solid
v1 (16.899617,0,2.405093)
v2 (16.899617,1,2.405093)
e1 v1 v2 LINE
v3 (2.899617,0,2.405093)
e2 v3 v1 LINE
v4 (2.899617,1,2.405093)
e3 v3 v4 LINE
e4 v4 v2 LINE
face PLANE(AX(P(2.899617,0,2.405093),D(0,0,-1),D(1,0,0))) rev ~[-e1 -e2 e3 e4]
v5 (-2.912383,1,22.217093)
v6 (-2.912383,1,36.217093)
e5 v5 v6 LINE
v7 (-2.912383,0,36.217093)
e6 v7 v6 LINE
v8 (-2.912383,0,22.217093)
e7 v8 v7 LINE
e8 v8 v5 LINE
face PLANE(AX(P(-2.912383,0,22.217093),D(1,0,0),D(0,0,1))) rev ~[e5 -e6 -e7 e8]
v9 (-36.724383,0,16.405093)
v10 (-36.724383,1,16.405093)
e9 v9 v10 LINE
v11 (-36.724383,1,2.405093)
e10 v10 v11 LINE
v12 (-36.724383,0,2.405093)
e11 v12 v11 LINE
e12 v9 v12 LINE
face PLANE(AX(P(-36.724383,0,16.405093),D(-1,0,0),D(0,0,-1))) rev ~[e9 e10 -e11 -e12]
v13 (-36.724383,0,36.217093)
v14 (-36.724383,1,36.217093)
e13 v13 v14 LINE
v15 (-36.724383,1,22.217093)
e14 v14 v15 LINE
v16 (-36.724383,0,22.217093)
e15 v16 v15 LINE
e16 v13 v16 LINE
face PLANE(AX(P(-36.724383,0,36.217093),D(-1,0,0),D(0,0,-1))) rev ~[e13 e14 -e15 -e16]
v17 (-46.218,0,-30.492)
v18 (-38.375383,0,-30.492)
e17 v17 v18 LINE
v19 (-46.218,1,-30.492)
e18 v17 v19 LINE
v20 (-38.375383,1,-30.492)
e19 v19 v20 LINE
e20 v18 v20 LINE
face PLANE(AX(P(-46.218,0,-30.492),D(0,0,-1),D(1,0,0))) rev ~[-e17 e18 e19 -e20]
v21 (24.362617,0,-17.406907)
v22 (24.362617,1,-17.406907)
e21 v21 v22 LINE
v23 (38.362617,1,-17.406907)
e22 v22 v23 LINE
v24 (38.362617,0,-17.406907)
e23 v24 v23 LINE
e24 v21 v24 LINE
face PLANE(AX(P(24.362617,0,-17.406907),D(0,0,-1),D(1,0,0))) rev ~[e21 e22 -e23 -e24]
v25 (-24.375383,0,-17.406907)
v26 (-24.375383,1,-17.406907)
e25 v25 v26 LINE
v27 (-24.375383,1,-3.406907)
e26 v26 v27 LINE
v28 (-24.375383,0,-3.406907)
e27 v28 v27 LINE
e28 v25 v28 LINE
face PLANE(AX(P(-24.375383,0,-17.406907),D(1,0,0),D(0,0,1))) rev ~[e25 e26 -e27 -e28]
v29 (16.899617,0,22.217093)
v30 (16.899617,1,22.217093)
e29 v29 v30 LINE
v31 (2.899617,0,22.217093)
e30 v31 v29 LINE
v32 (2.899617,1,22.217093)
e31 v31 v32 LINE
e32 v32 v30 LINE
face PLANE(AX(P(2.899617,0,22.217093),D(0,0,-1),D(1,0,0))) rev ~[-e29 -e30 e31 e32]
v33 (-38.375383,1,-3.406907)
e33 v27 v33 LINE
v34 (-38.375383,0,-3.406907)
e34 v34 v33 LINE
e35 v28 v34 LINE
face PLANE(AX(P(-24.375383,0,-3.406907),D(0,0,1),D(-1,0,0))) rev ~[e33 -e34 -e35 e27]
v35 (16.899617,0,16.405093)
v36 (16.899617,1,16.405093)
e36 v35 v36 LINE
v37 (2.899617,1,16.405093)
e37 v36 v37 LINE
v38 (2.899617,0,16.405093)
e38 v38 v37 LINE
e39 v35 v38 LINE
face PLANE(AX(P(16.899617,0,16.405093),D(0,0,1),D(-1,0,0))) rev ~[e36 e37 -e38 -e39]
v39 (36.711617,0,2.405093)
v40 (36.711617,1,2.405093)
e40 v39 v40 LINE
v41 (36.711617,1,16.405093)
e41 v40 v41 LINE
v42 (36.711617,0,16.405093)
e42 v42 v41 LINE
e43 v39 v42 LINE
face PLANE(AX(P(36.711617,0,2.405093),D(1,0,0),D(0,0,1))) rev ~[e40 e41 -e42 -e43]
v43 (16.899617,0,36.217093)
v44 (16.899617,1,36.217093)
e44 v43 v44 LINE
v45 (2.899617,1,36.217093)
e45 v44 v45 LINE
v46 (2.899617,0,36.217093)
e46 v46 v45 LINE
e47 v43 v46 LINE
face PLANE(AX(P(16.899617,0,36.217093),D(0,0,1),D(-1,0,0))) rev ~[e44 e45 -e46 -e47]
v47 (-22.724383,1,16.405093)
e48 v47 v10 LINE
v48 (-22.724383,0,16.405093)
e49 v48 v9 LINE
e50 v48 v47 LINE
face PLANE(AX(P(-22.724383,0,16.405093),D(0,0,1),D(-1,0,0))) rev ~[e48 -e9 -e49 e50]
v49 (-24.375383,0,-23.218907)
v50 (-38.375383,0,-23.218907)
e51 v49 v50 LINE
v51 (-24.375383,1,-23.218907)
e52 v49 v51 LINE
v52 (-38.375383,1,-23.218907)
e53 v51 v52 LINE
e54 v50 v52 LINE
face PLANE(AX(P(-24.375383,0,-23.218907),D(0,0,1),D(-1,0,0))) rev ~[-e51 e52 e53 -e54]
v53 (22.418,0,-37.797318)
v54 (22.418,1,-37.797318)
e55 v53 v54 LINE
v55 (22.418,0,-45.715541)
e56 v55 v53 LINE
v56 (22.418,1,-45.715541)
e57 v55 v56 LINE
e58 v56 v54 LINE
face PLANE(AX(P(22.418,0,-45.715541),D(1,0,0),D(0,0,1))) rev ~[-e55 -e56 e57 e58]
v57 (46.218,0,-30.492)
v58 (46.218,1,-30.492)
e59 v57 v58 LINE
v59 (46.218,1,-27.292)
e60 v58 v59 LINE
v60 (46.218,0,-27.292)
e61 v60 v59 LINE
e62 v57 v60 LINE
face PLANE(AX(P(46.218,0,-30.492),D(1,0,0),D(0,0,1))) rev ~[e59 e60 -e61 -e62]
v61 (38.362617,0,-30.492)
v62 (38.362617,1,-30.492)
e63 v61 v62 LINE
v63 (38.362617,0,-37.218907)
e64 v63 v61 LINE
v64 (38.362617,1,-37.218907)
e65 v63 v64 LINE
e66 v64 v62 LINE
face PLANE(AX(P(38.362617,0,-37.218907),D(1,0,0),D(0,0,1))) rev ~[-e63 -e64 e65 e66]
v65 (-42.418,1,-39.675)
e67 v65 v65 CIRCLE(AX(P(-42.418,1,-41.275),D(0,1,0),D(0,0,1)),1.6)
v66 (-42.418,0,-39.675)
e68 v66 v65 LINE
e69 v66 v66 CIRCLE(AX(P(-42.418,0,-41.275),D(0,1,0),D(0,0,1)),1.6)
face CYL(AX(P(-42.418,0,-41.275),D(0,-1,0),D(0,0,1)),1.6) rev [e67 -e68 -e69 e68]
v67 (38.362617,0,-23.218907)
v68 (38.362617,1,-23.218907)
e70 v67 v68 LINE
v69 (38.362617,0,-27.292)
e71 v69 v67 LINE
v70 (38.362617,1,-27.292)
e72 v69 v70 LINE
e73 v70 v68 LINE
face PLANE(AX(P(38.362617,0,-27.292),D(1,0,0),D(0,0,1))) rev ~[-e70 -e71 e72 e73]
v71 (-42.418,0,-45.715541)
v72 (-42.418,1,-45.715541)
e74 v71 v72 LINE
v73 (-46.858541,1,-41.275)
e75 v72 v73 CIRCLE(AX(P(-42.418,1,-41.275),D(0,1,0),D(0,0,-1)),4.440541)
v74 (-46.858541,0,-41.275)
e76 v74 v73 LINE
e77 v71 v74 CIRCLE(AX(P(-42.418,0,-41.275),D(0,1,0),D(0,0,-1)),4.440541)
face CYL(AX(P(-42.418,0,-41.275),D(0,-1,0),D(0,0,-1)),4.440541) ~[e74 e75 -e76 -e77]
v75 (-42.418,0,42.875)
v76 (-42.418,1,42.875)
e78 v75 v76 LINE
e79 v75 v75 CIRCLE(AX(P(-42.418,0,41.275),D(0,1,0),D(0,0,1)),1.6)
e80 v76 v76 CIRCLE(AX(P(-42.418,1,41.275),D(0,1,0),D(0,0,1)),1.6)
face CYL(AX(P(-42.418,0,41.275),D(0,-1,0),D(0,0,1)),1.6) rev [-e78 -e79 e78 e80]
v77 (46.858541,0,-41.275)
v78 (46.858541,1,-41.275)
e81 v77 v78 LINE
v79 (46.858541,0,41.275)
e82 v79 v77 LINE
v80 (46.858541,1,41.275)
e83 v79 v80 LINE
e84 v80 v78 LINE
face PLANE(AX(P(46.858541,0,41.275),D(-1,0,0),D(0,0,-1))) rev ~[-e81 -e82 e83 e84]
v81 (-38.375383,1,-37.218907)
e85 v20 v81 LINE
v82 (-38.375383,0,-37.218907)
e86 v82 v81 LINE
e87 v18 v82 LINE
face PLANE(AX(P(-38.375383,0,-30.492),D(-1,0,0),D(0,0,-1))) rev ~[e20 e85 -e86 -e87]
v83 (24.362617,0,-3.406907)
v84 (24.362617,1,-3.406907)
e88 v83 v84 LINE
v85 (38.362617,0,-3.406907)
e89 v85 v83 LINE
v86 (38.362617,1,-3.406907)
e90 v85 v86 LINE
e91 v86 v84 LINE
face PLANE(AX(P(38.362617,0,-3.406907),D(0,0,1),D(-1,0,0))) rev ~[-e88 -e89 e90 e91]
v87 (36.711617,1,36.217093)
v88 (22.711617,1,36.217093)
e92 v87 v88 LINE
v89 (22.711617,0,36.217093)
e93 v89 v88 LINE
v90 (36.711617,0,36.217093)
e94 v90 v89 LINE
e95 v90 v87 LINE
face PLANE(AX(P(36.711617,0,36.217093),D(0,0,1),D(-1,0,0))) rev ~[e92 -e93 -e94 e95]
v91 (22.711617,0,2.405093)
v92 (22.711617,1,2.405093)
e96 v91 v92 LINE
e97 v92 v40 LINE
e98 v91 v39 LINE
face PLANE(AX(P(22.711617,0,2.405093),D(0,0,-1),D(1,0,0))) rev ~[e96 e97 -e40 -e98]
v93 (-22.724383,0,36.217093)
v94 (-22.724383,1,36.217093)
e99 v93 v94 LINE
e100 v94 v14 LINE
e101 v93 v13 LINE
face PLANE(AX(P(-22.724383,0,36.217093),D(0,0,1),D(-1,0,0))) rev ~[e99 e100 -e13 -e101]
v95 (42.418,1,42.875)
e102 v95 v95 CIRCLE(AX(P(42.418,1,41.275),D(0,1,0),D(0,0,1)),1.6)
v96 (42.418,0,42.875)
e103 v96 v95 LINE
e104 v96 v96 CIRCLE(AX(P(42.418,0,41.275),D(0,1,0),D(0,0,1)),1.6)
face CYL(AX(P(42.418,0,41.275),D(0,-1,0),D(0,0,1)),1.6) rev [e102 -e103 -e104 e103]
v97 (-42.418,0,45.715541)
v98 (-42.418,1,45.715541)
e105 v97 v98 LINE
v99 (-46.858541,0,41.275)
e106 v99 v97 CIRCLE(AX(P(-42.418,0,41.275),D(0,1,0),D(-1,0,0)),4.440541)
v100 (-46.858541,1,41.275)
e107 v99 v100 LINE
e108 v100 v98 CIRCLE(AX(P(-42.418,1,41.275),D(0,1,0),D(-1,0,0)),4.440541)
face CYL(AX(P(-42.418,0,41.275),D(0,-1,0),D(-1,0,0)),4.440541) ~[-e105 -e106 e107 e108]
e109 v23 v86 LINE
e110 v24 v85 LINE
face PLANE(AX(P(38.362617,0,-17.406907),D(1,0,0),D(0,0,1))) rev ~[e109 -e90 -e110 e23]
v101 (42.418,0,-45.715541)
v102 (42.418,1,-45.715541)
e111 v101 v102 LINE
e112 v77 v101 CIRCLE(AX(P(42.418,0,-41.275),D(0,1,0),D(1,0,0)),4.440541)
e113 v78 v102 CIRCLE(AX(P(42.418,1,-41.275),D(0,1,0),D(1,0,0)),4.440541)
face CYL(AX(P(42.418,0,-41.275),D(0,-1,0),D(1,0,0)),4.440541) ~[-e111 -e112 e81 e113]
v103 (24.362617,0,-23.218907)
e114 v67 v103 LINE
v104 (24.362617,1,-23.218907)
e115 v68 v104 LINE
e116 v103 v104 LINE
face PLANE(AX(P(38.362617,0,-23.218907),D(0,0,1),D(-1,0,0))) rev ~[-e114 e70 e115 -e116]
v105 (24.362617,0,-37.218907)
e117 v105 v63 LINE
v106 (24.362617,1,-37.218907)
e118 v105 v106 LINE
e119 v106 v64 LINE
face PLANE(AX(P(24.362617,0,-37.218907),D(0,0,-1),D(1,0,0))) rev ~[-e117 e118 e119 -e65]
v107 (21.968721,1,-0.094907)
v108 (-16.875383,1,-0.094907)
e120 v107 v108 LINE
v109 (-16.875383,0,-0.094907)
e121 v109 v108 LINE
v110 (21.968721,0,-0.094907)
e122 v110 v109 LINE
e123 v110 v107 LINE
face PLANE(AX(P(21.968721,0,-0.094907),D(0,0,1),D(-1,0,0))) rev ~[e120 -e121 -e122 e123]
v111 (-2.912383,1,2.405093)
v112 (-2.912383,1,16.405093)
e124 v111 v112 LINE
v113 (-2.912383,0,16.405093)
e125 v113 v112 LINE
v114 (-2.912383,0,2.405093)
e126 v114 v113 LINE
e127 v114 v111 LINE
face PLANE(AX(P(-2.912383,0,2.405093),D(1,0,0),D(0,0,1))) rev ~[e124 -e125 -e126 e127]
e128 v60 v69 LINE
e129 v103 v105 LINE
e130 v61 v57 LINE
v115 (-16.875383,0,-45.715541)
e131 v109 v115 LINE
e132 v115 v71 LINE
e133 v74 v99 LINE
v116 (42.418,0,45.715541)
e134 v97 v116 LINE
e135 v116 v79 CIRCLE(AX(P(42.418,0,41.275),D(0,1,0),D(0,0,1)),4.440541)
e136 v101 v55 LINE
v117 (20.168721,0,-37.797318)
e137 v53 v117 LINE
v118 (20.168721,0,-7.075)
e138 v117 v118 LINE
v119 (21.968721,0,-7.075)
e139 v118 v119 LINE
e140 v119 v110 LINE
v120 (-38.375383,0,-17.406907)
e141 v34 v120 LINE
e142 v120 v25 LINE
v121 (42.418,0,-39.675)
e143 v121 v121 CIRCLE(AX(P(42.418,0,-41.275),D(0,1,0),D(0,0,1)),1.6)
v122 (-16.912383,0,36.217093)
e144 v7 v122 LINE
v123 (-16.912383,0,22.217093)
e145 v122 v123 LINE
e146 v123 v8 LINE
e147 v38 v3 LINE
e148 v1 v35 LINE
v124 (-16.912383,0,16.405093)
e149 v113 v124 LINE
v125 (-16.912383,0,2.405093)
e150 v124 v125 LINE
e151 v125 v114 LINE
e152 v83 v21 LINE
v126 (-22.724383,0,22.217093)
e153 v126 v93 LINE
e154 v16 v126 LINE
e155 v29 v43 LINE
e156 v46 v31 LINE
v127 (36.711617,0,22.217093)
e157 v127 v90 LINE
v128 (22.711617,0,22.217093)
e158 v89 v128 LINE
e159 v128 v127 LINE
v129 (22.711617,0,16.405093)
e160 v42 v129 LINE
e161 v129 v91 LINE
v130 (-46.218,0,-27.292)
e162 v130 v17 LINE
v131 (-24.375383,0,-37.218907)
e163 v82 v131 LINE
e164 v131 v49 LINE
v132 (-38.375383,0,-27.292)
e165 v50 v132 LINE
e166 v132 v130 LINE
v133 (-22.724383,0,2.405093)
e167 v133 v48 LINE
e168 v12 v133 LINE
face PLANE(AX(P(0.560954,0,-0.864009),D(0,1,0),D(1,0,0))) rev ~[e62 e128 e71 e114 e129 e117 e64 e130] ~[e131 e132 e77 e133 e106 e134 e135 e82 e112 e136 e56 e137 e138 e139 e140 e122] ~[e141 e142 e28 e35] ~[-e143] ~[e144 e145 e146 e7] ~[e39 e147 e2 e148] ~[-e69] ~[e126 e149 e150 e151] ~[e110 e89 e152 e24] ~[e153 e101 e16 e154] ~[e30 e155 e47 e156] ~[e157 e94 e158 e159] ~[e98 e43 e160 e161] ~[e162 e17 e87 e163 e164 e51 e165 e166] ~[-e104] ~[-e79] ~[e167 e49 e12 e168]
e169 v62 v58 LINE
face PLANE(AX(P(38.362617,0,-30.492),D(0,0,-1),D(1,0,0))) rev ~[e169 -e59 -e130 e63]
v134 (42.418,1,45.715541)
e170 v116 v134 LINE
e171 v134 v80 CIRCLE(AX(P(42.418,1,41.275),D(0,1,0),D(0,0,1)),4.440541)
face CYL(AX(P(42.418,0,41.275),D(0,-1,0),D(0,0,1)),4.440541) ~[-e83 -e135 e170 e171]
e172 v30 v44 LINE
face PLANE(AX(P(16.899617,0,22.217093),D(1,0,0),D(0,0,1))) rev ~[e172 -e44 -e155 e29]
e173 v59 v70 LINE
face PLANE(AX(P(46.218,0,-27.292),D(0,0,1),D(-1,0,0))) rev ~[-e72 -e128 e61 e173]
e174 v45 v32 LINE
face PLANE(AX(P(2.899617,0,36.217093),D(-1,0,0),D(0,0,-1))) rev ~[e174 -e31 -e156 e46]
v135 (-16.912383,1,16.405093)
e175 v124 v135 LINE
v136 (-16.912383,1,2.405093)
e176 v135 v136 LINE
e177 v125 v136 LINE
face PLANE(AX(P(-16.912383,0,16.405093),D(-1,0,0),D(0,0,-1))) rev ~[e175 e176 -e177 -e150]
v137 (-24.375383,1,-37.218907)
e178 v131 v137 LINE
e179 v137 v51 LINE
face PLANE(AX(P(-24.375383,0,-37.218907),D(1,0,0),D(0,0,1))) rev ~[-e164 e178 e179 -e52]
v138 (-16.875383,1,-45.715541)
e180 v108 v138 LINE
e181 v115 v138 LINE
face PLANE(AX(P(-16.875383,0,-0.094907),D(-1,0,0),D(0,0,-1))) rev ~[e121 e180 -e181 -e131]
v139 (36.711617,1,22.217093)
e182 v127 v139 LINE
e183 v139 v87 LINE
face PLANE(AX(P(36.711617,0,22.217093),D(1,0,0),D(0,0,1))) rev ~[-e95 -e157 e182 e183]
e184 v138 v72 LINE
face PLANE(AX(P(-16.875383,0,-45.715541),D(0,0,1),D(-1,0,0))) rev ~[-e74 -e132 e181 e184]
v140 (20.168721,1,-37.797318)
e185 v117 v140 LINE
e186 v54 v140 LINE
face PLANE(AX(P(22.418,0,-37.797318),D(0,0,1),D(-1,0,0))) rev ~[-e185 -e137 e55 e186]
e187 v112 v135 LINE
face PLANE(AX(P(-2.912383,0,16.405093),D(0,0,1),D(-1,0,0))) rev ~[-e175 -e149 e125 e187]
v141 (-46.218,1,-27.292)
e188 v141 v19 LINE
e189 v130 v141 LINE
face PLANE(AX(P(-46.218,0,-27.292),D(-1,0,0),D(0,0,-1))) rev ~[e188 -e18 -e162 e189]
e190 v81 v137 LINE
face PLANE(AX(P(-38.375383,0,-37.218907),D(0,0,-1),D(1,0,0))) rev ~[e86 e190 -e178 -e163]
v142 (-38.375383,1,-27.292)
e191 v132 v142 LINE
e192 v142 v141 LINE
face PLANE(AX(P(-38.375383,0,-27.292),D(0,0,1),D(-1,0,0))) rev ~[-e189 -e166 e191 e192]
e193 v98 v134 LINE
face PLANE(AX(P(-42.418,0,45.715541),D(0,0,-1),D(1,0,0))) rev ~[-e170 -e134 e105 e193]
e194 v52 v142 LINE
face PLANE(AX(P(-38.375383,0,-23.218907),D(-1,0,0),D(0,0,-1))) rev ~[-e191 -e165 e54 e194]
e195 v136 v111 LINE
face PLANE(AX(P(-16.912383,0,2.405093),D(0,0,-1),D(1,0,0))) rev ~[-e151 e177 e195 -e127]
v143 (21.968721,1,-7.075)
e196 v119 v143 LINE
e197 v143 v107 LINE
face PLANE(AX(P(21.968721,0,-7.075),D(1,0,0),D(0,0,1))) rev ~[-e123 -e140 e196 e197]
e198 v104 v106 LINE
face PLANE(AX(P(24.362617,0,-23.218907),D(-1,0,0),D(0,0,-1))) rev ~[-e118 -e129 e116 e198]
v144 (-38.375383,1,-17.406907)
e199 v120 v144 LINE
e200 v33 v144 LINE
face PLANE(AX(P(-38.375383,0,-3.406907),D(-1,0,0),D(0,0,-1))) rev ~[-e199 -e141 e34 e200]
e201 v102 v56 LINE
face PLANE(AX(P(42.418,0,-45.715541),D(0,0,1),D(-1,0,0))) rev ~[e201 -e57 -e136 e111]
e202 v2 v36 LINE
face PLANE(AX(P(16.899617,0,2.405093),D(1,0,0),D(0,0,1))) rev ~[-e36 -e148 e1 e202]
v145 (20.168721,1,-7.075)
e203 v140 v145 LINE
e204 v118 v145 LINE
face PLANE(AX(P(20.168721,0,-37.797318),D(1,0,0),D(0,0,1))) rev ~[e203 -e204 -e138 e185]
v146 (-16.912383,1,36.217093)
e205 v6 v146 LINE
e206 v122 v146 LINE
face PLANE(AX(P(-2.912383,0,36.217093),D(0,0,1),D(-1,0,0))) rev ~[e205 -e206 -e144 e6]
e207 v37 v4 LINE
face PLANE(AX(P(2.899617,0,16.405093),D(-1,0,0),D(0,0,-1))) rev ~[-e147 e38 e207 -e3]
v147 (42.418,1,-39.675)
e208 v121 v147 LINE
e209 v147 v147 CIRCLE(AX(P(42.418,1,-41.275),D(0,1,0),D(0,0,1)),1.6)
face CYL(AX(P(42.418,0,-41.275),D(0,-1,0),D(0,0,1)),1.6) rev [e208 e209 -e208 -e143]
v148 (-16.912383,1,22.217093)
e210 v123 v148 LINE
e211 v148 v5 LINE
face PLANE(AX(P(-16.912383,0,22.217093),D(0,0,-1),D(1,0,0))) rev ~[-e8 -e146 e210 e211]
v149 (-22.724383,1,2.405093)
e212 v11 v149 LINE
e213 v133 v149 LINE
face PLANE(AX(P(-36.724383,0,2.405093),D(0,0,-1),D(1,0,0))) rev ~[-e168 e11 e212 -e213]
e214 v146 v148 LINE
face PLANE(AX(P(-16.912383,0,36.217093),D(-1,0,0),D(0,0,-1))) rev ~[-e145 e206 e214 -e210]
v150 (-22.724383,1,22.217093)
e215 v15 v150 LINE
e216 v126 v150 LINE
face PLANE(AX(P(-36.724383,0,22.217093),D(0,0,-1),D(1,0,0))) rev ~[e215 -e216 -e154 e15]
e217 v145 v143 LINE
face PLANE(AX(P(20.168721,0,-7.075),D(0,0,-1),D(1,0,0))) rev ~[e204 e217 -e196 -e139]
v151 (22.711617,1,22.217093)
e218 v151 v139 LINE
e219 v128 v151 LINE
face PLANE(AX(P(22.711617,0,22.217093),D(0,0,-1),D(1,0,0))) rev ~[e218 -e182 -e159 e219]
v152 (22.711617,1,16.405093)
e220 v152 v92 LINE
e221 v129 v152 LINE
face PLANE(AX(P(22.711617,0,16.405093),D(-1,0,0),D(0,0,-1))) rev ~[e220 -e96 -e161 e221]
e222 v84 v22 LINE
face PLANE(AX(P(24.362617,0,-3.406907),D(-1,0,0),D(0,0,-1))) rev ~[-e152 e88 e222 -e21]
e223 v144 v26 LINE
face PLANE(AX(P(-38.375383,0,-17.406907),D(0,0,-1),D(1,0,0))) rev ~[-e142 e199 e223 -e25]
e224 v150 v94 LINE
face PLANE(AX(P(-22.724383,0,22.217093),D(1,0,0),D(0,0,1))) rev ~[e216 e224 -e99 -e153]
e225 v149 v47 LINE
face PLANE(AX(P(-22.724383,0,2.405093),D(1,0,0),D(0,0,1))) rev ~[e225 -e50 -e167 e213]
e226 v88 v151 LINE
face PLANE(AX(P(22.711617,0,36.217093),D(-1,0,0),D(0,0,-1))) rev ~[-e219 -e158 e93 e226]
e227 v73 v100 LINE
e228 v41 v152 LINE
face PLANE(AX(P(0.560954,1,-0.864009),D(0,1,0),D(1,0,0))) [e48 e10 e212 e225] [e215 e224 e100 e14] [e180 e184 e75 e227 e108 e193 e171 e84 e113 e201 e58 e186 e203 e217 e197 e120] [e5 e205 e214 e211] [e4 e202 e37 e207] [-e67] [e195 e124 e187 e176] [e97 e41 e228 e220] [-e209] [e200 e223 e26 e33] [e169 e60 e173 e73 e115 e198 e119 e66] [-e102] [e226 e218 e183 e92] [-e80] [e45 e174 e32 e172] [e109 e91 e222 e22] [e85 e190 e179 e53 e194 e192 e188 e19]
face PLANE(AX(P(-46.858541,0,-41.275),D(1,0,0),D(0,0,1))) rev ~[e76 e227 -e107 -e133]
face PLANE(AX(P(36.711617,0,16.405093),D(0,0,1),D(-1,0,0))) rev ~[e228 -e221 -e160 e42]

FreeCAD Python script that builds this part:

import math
import FreeCAD as App
import Part
import Sketcher

doc = App.newDocument("Part")
body = doc.addObject("PartDesign::Body", "Body")

sketch1 = body.newObject("Sketcher::SketchObject", "Sketch")
sketch1.AttachmentSupport = (doc.getObject("XZ_Plane"), [""])
sketch1.MapMode = "FlatFace"
sketch1.addGeometry(Part.LineSegment(App.Vector(-46.9, -41.3, 0), App.Vector(-46.9, 41.3, 0)), False)
sketch1.addGeometry(Part.ArcOfCircle(Part.Circle(App.Vector(-42.4, 41.3, 0), App.Vector(0, 0, 1), 4.4), math.radians(90), math.radians(180)), False)
sketch1.addGeometry(Part.LineSegment(App.Vector(-42.4, 45.7, 0), App.Vector(42.4, 45.7, 0)), False)
sketch1.addGeometry(Part.ArcOfCircle(Part.Circle(App.Vector(42.4, 41.3, 0), App.Vector(0, 0, 1), 4.4), math.radians(0), math.radians(90)), False)
sketch1.addGeometry(Part.LineSegment(App.Vector(46.9, 41.3, 0), App.Vector(46.9, -41.3, 0)), False)
sketch1.addGeometry(Part.ArcOfCircle(Part.Circle(App.Vector(42.4, -41.3, 0), App.Vector(0, 0, 1), 4.4), math.radians(-90), math.radians(0)), False)
sketch1.addGeometry(Part.LineSegment(App.Vector(42.4, -45.7, 0), App.Vector(22.4, -45.7, 0)), False)
sketch1.addGeometry(Part.LineSegment(App.Vector(22.4, -45.7, 0), App.Vector(22.4, -37.8, 0)), False)
sketch1.addGeometry(Part.LineSegment(App.Vector(22.4, -37.8, 0), App.Vector(20.2, -37.8, 0)), False)
sketch1.addGeometry(Part.LineSegment(App.Vector(20.2, -37.8, 0), App.Vector(20.2, -7.1, 0)), False)
sketch1.addGeometry(Part.LineSegment(App.Vector(20.2, -7.1, 0), App.Vector(22, -7.1, 0)), False)
sketch1.addGeometry(Part.LineSegment(App.Vector(22, -7.1, 0), App.Vector(22, -0.1, 0)), False)
sketch1.addGeometry(Part.LineSegment(App.Vector(22, -0.1, 0), App.Vector(-16.9, -0.1, 0)), False)
sketch1.addGeometry(Part.LineSegment(App.Vector(-16.9, -0.1, 0), App.Vector(-16.9, -45.7, 0)), False)
sketch1.addGeometry(Part.LineSegment(App.Vector(-16.9, -45.7, 0), App.Vector(-42.4, -45.7, 0)), False)
sketch1.addGeometry(Part.ArcOfCircle(Part.Circle(App.Vector(-42.4, -41.3, 0), App.Vector(0, 0, 1), 4.4), math.radians(180), math.radians(270)), False)
sketch1.addGeometry(Part.Circle(App.Vector(-42.4, 41.3, 0), App.Vector(0, 0, 1), 1.6), False)
sketch1.addGeometry(Part.LineSegment(App.Vector(-22.7, 36.2, 0), App.Vector(-36.7, 36.2, 0)), False)
sketch1.addGeometry(Part.LineSegment(App.Vector(-36.7, 36.2, 0), App.Vector(-36.7, 22.2, 0)), False)
sketch1.addGeometry(Part.LineSegment(App.Vector(-36.7, 22.2, 0), App.Vector(-22.7, 22.2, 0)), False)
sketch1.addGeometry(Part.LineSegment(App.Vector(-22.7, 22.2, 0), App.Vector(-22.7, 36.2, 0)), False)
sketch1.addGeometry(Part.LineSegment(App.Vector(-16.9, 36.2, 0), App.Vector(-16.9, 22.2, 0)), False)
sketch1.addGeometry(Part.LineSegment(App.Vector(-16.9, 22.2, 0), App.Vector(-2.9, 22.2, 0)), False)
sketch1.addGeometry(Part.LineSegment(App.Vector(-2.9, 22.2, 0), App.Vector(-2.9, 36.2, 0)), False)
sketch1.addGeometry(Part.LineSegment(App.Vector(-2.9, 36.2, 0), App.Vector(-16.9, 36.2, 0)), False)
sketch1.addGeometry(Part.LineSegment(App.Vector(-22.7, 16.4, 0), App.Vector(-36.7, 16.4, 0)), False)
sketch1.addGeometry(Part.LineSegment(App.Vector(-36.7, 16.4, 0), App.Vector(-36.7, 2.4, 0)), False)
sketch1.addGeometry(Part.LineSegment(App.Vector(-36.7, 2.4, 0), App.Vector(-22.7, 2.4, 0)), False)
sketch1.addGeometry(Part.LineSegment(App.Vector(-22.7, 2.4, 0), App.Vector(-22.7, 16.4, 0)), False)
sketch1.addGeometry(Part.LineSegment(App.Vector(-2.9, 2.4, 0), App.Vector(-2.9, 16.4, 0)), False)
sketch1.addGeometry(Part.LineSegment(App.Vector(-2.9, 16.4, 0), App.Vector(-16.9, 16.4, 0)), False)
sketch1.addGeometry(Part.LineSegment(App.Vector(-16.9, 16.4, 0), App.Vector(-16.9, 2.4, 0)), False)
sketch1.addGeometry(Part.LineSegment(App.Vector(-16.9, 2.4, 0), App.Vector(-2.9, 2.4, 0)), False)
sketch1.addGeometry(Part.LineSegment(App.Vector(2.9, 36.2, 0), App.Vector(2.9, 22.2, 0)), False)
sketch1.addGeometry(Part.LineSegment(App.Vector(2.9, 22.2, 0), App.Vector(16.9, 22.2, 0)), False)
sketch1.addGeometry(Part.LineSegment(App.Vector(16.9, 22.2, 0), App.Vector(16.9, 36.2, 0)), False)
sketch1.addGeometry(Part.LineSegment(App.Vector(16.9, 36.2, 0), App.Vector(2.9, 36.2, 0)), False)
sketch1.addGeometry(Part.Circle(App.Vector(42.4, 41.3, 0), App.Vector(0, 0, 1), 1.6), False)
sketch1.addGeometry(Part.LineSegment(App.Vector(22.7, 22.2, 0), App.Vector(36.7, 22.2, 0)), False)
sketch1.addGeometry(Part.LineSegment(App.Vector(36.7, 22.2, 0), App.Vector(36.7, 36.2, 0)), False)
sketch1.addGeometry(Part.LineSegment(App.Vector(36.7, 36.2, 0), App.Vector(22.7, 36.2, 0)), False)
sketch1.addGeometry(Part.LineSegment(App.Vector(22.7, 36.2, 0), App.Vector(22.7, 22.2, 0)), False)
sketch1.addGeometry(Part.LineSegment(App.Vector(2.9, 16.4, 0), App.Vector(2.9, 2.4, 0)), False)
sketch1.addGeometry(Part.LineSegment(App.Vector(2.9, 2.4, 0), App.Vector(16.9, 2.4, 0)), False)
sketch1.addGeometry(Part.LineSegment(App.Vector(16.9, 2.4, 0), App.Vector(16.9, 16.4, 0)), False)
sketch1.addGeometry(Part.LineSegment(App.Vector(16.9, 16.4, 0), App.Vector(2.9, 16.4, 0)), False)
sketch1.addGeometry(Part.LineSegment(App.Vector(22.7, 16.4, 0), App.Vector(22.7, 2.4, 0)), False)
sketch1.addGeometry(Part.LineSegment(App.Vector(22.7, 2.4, 0), App.Vector(36.7, 2.4, 0)), False)
sketch1.addGeometry(Part.LineSegment(App.Vector(36.7, 2.4, 0), App.Vector(36.7, 16.4, 0)), False)
sketch1.addGeometry(Part.LineSegment(App.Vector(36.7, 16.4, 0), App.Vector(22.7, 16.4, 0)), False)
sketch1.addGeometry(Part.LineSegment(App.Vector(-24.4, -3.4, 0), App.Vector(-38.4, -3.4, 0)), False)
sketch1.addGeometry(Part.LineSegment(App.Vector(-38.4, -3.4, 0), App.Vector(-38.4, -17.4, 0)), False)
sketch1.addGeometry(Part.LineSegment(App.Vector(-38.4, -17.4, 0), App.Vector(-24.4, -17.4, 0)), False)
sketch1.addGeometry(Part.LineSegment(App.Vector(-24.4, -17.4, 0), App.Vector(-24.4, -3.4, 0)), False)
sketch1.addGeometry(Part.LineSegment(App.Vector(-38.4, -27.3, 0), App.Vector(-46.2, -27.3, 0)), False)
sketch1.addGeometry(Part.LineSegment(App.Vector(-46.2, -27.3, 0), App.Vector(-46.2, -30.5, 0)), False)
sketch1.addGeometry(Part.LineSegment(App.Vector(-46.2, -30.5, 0), App.Vector(-38.4, -30.5, 0)), False)
sketch1.addGeometry(Part.LineSegment(App.Vector(-38.4, -30.5, 0), App.Vector(-38.4, -37.2, 0)), False)
sketch1.addGeometry(Part.LineSegment(App.Vector(-38.4, -37.2, 0), App.Vector(-24.4, -37.2, 0)), False)
sketch1.addGeometry(Part.LineSegment(App.Vector(-24.4, -37.2, 0), App.Vector(-24.4, -23.2, 0)), False)
sketch1.addGeometry(Part.LineSegment(App.Vector(-24.4, -23.2, 0), App.Vector(-38.4, -23.2, 0)), False)
sketch1.addGeometry(Part.LineSegment(App.Vector(-38.4, -23.2, 0), App.Vector(-38.4, -27.3, 0)), False)
sketch1.addGeometry(Part.Circle(App.Vector(-42.4, -41.3, 0), App.Vector(0, 0, 1), 1.6), False)
sketch1.addGeometry(Part.LineSegment(App.Vector(24.4, -17.4, 0), App.Vector(38.4, -17.4, 0)), False)
sketch1.addGeometry(Part.LineSegment(App.Vector(38.4, -17.4, 0), App.Vector(38.4, -3.4, 0)), False)
sketch1.addGeometry(Part.LineSegment(App.Vector(38.4, -3.4, 0), App.Vector(24.4, -3.4, 0)), False)
sketch1.addGeometry(Part.LineSegment(App.Vector(24.4, -3.4, 0), App.Vector(24.4, -17.4, 0)), False)
sketch1.addGeometry(Part.LineSegment(App.Vector(46.2, -30.5, 0), App.Vector(46.2, -27.3, 0)), False)
sketch1.addGeometry(Part.LineSegment(App.Vector(46.2, -27.3, 0), App.Vector(38.4, -27.3, 0)), False)
sketch1.addGeometry(Part.LineSegment(App.Vector(38.4, -27.3, 0), App.Vector(38.4, -23.2, 0)), False)
sketch1.addGeometry(Part.LineSegment(App.Vector(38.4, -23.2, 0), App.Vector(24.4, -23.2, 0)), False)
sketch1.addGeometry(Part.LineSegment(App.Vector(24.4, -23.2, 0), App.Vector(24.4, -37.2, 0)), False)
sketch1.addGeometry(Part.LineSegment(App.Vector(24.4, -37.2, 0), App.Vector(38.4, -37.2, 0)), False)
sketch1.addGeometry(Part.LineSegment(App.Vector(38.4, -37.2, 0), App.Vector(38.4, -30.5, 0)), False)
sketch1.addGeometry(Part.LineSegment(App.Vector(38.4, -30.5, 0), App.Vector(46.2, -30.5, 0)), False)
sketch1.addGeometry(Part.Circle(App.Vector(42.4, -41.3, 0), App.Vector(0, 0, 1), 1.6), False)
sketch1.addConstraint(Sketcher.Constraint("Tangent", 0, 2, 1, 2))
sketch1.addConstraint(Sketcher.Constraint("Tangent", 1, 1, 2, 1))
sketch1.addConstraint(Sketcher.Constraint("Tangent", 2, 2, 3, 2))
sketch1.addConstraint(Sketcher.Constraint("Tangent", 3, 1, 4, 1))
sketch1.addConstraint(Sketcher.Constraint("Tangent", 4, 2, 5, 2))
sketch1.addConstraint(Sketcher.Constraint("Tangent", 5, 1, 6, 1))
sketch1.addConstraint(Sketcher.Constraint("Coincident", 6, 2, 7, 1))
sketch1.addConstraint(Sketcher.Constraint("Coincident", 7, 2, 8, 1))
sketch1.addConstraint(Sketcher.Constraint("Coincident", 8, 2, 9, 1))
sketch1.addConstraint(Sketcher.Constraint("Coincident", 9, 2, 10, 1))
sketch1.addConstraint(Sketcher.Constraint("Coincident", 10, 2, 11, 1))
sketch1.addConstraint(Sketcher.Constraint("Coincident", 11, 2, 12, 1))
sketch1.addConstraint(Sketcher.Constraint("Coincident", 12, 2, 13, 1))
sketch1.addConstraint(Sketcher.Constraint("Coincident", 13, 2, 14, 1))
sketch1.addConstraint(Sketcher.Constraint("Tangent", 14, 2, 15, 2))
sketch1.addConstraint(Sketcher.Constraint("Tangent", 15, 1, 0, 1))
sketch1.addConstraint(Sketcher.Constraint("Coincident", 17, 2, 18, 1))
sketch1.addConstraint(Sketcher.Constraint("Coincident", 18, 2, 19, 1))
sketch1.addConstraint(Sketcher.Constraint("Coincident", 19, 2, 20, 1))
sketch1.addConstraint(Sketcher.Constraint("Coincident", 20, 2, 17, 1))
sketch1.addConstraint(Sketcher.Constraint("Coincident", 21, 2, 22, 1))
sketch1.addConstraint(Sketcher.Constraint("Coincident", 22, 2, 23, 1))
sketch1.addConstraint(Sketcher.Constraint("Coincident", 23, 2, 24, 1))
sketch1.addConstraint(Sketcher.Constraint("Coincident", 24, 2, 21, 1))
sketch1.addConstraint(Sketcher.Constraint("Coincident", 25, 2, 26, 1))
sketch1.addConstraint(Sketcher.Constraint("Coincident", 26, 2, 27, 1))
sketch1.addConstraint(Sketcher.Constraint("Coincident", 27, 2, 28, 1))
sketch1.addConstraint(Sketcher.Constraint("Coincident", 28, 2, 25, 1))
sketch1.addConstraint(Sketcher.Constraint("Coincident", 29, 2, 30, 1))
sketch1.addConstraint(Sketcher.Constraint("Coincident", 30, 2, 31, 1))
sketch1.addConstraint(Sketcher.Constraint("Coincident", 31, 2, 32, 1))
sketch1.addConstraint(Sketcher.Constraint("Coincident", 32, 2, 29, 1))
sketch1.addConstraint(Sketcher.Constraint("Coincident", 33, 2, 34, 1))
sketch1.addConstraint(Sketcher.Constraint("Coincident", 34, 2, 35, 1))
sketch1.addConstraint(Sketcher.Constraint("Coincident", 35, 2, 36, 1))
sketch1.addConstraint(Sketcher.Constraint("Coincident", 36, 2, 33, 1))
sketch1.addConstraint(Sketcher.Constraint("Coincident", 38, 2, 39, 1))
sketch1.addConstraint(Sketcher.Constraint("Coincident", 39, 2, 40, 1))
sketch1.addConstraint(Sketcher.Constraint("Coincident", 40, 2, 41, 1))
sketch1.addConstraint(Sketcher.Constraint("Coincident", 41, 2, 38, 1))
sketch1.addConstraint(Sketcher.Constraint("Coincident", 42, 2, 43, 1))
sketch1.addConstraint(Sketcher.Constraint("Coincident", 43, 2, 44, 1))
sketch1.addConstraint(Sketcher.Constraint("Coincident", 44, 2, 45, 1))
sketch1.addConstraint(Sketcher.Constraint("Coincident", 45, 2, 42, 1))
sketch1.addConstraint(Sketcher.Constraint("Coincident", 46, 2, 47, 1))
sketch1.addConstraint(Sketcher.Constraint("Coincident", 47, 2, 48, 1))
sketch1.addConstraint(Sketcher.Constraint("Coincident", 48, 2, 49, 1))
sketch1.addConstraint(Sketcher.Constraint("Coincident", 49, 2, 46, 1))
sketch1.addConstraint(Sketcher.Constraint("Coincident", 50, 2, 51, 1))
sketch1.addConstraint(Sketcher.Constraint("Coincident", 51, 2, 52, 1))
sketch1.addConstraint(Sketcher.Constraint("Coincident", 52, 2, 53, 1))
sketch1.addConstraint(Sketcher.Constraint("Coincident", 53, 2, 50, 1))
sketch1.addConstraint(Sketcher.Constraint("Coincident", 54, 2, 55, 1))
sketch1.addConstraint(Sketcher.Constraint("Coincident", 55, 2, 56, 1))
sketch1.addConstraint(Sketcher.Constraint("Coincident", 56, 2, 57, 1))
sketch1.addConstraint(Sketcher.Constraint("Coincident", 57, 2, 58, 1))
sketch1.addConstraint(Sketcher.Constraint("Coincident", 58, 2, 59, 1))
sketch1.addConstraint(Sketcher.Constraint("Coincident", 59, 2, 60, 1))
sketch1.addConstraint(Sketcher.Constraint("Coincident", 60, 2, 61, 1))
sketch1.addConstraint(Sketcher.Constraint("Coincident", 61, 2, 54, 1))
sketch1.addConstraint(Sketcher.Constraint("Coincident", 63, 2, 64, 1))
sketch1.addConstraint(Sketcher.Constraint("Coincident", 64, 2, 65, 1))
sketch1.addConstraint(Sketcher.Constraint("Coincident", 65, 2, 66, 1))
sketch1.addConstraint(Sketcher.Constraint("Coincident", 66, 2, 63, 1))
sketch1.addConstraint(Sketcher.Constraint("Coincident", 67, 2, 68, 1))
sketch1.addConstraint(Sketcher.Constraint("Coincident", 68, 2, 69, 1))
sketch1.addConstraint(Sketcher.Constraint("Coincident", 69, 2, 70, 1))
sketch1.addConstraint(Sketcher.Constraint("Coincident", 70, 2, 71, 1))
sketch1.addConstraint(Sketcher.Constraint("Coincident", 71, 2, 72, 1))
sketch1.addConstraint(Sketcher.Constraint("Coincident", 72, 2, 73, 1))
sketch1.addConstraint(Sketcher.Constraint("Coincident", 73, 2, 74, 1))
sketch1.addConstraint(Sketcher.Constraint("Coincident", 74, 2, 67, 1))
sketch1.addConstraint(Sketcher.Constraint("Vertical", 0))
sketch1.addConstraint(Sketcher.Constraint("Horizontal", 2))
sketch1.addConstraint(Sketcher.Constraint("Vertical", 4))
sketch1.addConstraint(Sketcher.Constraint("Horizontal", 6))
sketch1.addConstraint(Sketcher.Constraint("Vertical", 7))
sketch1.addConstraint(Sketcher.Constraint("Horizontal", 8))
sketch1.addConstraint(Sketcher.Constraint("Vertical", 9))
sketch1.addConstraint(Sketcher.Constraint("Horizontal", 10))
sketch1.addConstraint(Sketcher.Constraint("Vertical", 11))
sketch1.addConstraint(Sketcher.Constraint("Horizontal", 12))
sketch1.addConstraint(Sketcher.Constraint("Vertical", 13))
sketch1.addConstraint(Sketcher.Constraint("Horizontal", 14))
sketch1.addConstraint(Sketcher.Constraint("Horizontal", 17))
sketch1.addConstraint(Sketcher.Constraint("Vertical", 18))
sketch1.addConstraint(Sketcher.Constraint("Horizontal", 19))
sketch1.addConstraint(Sketcher.Constraint("Vertical", 20))
sketch1.addConstraint(Sketcher.Constraint("Vertical", 21))
sketch1.addConstraint(Sketcher.Constraint("Horizontal", 22))
sketch1.addConstraint(Sketcher.Constraint("Vertical", 23))
sketch1.addConstraint(Sketcher.Constraint("Horizontal", 24))
sketch1.addConstraint(Sketcher.Constraint("Horizontal", 25))
sketch1.addConstraint(Sketcher.Constraint("Vertical", 26))
sketch1.addConstraint(Sketcher.Constraint("Horizontal", 27))
sketch1.addConstraint(Sketcher.Constraint("Vertical", 28))
sketch1.addConstraint(Sketcher.Constraint("Vertical", 29))
sketch1.addConstraint(Sketcher.Constraint("Horizontal", 30))
sketch1.addConstraint(Sketcher.Constraint("Vertical", 31))
sketch1.addConstraint(Sketcher.Constraint("Horizontal", 32))
sketch1.addConstraint(Sketcher.Constraint("Vertical", 33))
sketch1.addConstraint(Sketcher.Constraint("Horizontal", 34))
sketch1.addConstraint(Sketcher.Constraint("Vertical", 35))
sketch1.addConstraint(Sketcher.Constraint("Horizontal", 36))
sketch1.addConstraint(Sketcher.Constraint("Horizontal", 38))
sketch1.addConstraint(Sketcher.Constraint("Vertical", 39))
sketch1.addConstraint(Sketcher.Constraint("Horizontal", 40))
sketch1.addConstraint(Sketcher.Constraint("Vertical", 41))
sketch1.addConstraint(Sketcher.Constraint("Vertical", 42))
sketch1.addConstraint(Sketcher.Constraint("Horizontal", 43))
sketch1.addConstraint(Sketcher.Constraint("Vertical", 44))
sketch1.addConstraint(Sketcher.Constraint("Horizontal", 45))
sketch1.addConstraint(Sketcher.Constraint("Vertical", 46))
sketch1.addConstraint(Sketcher.Constraint("Horizontal", 47))
sketch1.addConstraint(Sketcher.Constraint("Vertical", 48))
sketch1.addConstraint(Sketcher.Constraint("Horizontal", 49))
sketch1.addConstraint(Sketcher.Constraint("Horizontal", 50))
sketch1.addConstraint(Sketcher.Constraint("Vertical", 51))
sketch1.addConstraint(Sketcher.Constraint("Horizontal", 52))
sketch1.addConstraint(Sketcher.Constraint("Vertical", 53))
sketch1.addConstraint(Sketcher.Constraint("Horizontal", 54))
sketch1.addConstraint(Sketcher.Constraint("Vertical", 55))
sketch1.addConstraint(Sketcher.Constraint("Horizontal", 56))
sketch1.addConstraint(Sketcher.Constraint("Vertical", 57))
sketch1.addConstraint(Sketcher.Constraint("Horizontal", 58))
sketch1.addConstraint(Sketcher.Constraint("Vertical", 59))
sketch1.addConstraint(Sketcher.Constraint("Horizontal", 60))
sketch1.addConstraint(Sketcher.Constraint("Vertical", 61))
sketch1.addConstraint(Sketcher.Constraint("Horizontal", 63))
sketch1.addConstraint(Sketcher.Constraint("Vertical", 64))
sketch1.addConstraint(Sketcher.Constraint("Horizontal", 65))
sketch1.addConstraint(Sketcher.Constraint("Vertical", 66))
sketch1.addConstraint(Sketcher.Constraint("Vertical", 67))
sketch1.addConstraint(Sketcher.Constraint("Horizontal", 68))
sketch1.addConstraint(Sketcher.Constraint("Vertical", 69))
sketch1.addConstraint(Sketcher.Constraint("Horizontal", 70))
sketch1.addConstraint(Sketcher.Constraint("Vertical", 71))
sketch1.addConstraint(Sketcher.Constraint("Horizontal", 72))
sketch1.addConstraint(Sketcher.Constraint("Vertical", 73))
sketch1.addConstraint(Sketcher.Constraint("Horizontal", 74))
sketch1.addConstraint(Sketcher.Constraint("Coincident", 16, 3, 1, 3))
sketch1.addConstraint(Sketcher.Constraint("Coincident", 37, 3, 3, 3))
sketch1.addConstraint(Sketcher.Constraint("Coincident", 62, 3, 15, 3))
sketch1.addConstraint(Sketcher.Constraint("Coincident", 75, 3, 5, 3))
sketch1.addConstraint(Sketcher.Constraint("Equal", 1, 3))
sketch1.addConstraint(Sketcher.Constraint("Equal", 3, 5))
sketch1.addConstraint(Sketcher.Constraint("Equal", 5, 15))
sketch1.addConstraint(Sketcher.Constraint("Equal", 16, 37))
sketch1.addConstraint(Sketcher.Constraint("Equal", 37, 62))
sketch1.addConstraint(Sketcher.Constraint("Equal", 62, 75))
sketch1.addConstraint(Sketcher.Constraint("Symmetric", 1, 3, 5, 3, -1, 1))
sketch1.addConstraint(Sketcher.Constraint("Symmetric", 54, 2, 67, 2, -2))
sketch1.addConstraint(Sketcher.Constraint("Horizontal", 5, 3, 15, 3))
sketch1.addConstraint(Sketcher.Constraint("Horizontal", 19, 2, 21, 2))
sketch1.addConstraint(Sketcher.Constraint("Horizontal", 20, 2, 23, 2))
sketch1.addConstraint(Sketcher.Constraint("Horizontal", 28, 2, 29, 2))
sketch1.addConstraint(Sketcher.Constraint("Horizontal", 27, 2, 31, 2))
sketch1.addConstraint(Sketcher.Constraint("Horizontal", 22, 2, 33, 2))
sketch1.addConstraint(Sketcher.Constraint("Horizontal", 24, 2, 35, 2))
sketch1.addConstraint(Sketcher.Constraint("Horizontal", 34, 2, 38, 2))
sketch1.addConstraint(Sketcher.Constraint("Horizontal", 36, 2, 39, 2))
sketch1.addConstraint(Sketcher.Constraint("Horizontal", 32, 2, 42, 2))
sketch1.addConstraint(Sketcher.Constraint("Horizontal", 30, 2, 44, 2))
sketch1.addConstraint(Sketcher.Constraint("Horizontal", 43, 2, 46, 2))
sketch1.addConstraint(Sketcher.Constraint("Horizontal", 45, 2, 48, 2))
sketch1.addConstraint(Sketcher.Constraint("Horizontal", 52, 2, 63, 2))
sketch1.addConstraint(Sketcher.Constraint("Horizontal", 53, 2, 64, 2))
sketch1.addConstraint(Sketcher.Constraint("Horizontal", 60, 2, 69, 2))
sketch1.addConstraint(Sketcher.Constraint("Horizontal", 58, 2, 71, 2))
sketch1.addConstraint(Sketcher.Constraint("Horizontal", 56, 2, 73, 2))
sketch1.addConstraint(Sketcher.Constraint("Vertical", 18, 2, 25, 2))
sketch1.addConstraint(Sketcher.Constraint("Vertical", 20, 2, 27, 2))
sketch1.addConstraint(Sketcher.Constraint("Vertical", 23, 2, 29, 2))
sketch1.addConstraint(Sketcher.Constraint("Vertical", 24, 2, 30, 2))
sketch1.addConstraint(Sketcher.Constraint("Vertical", 36, 2, 42, 2))
sketch1.addConstraint(Sketcher.Constraint("Vertical", 35, 2, 43, 2))
sketch1.addConstraint(Sketcher.Constraint("Vertical", 41, 2, 46, 2))
sketch1.addConstraint(Sketcher.Constraint("Vertical", 39, 2, 47, 2))
sketch1.addConstraint(Sketcher.Constraint("Vertical", 51, 2, 56, 2))
sketch1.addConstraint(Sketcher.Constraint("Vertical", 53, 2, 58, 2))
sketch1.addConstraint(Sketcher.Constraint("Vertical", 57, 2, 60, 2))
sketch1.addConstraint(Sketcher.Constraint("Vertical", 64, 2, 68, 2))
sketch1.addConstraint(Sketcher.Constraint("Vertical", 66, 2, 70, 2))
sketch1.addConstraint(Sketcher.Constraint("Vertical", 69, 2, 72, 2))
sketch1.addConstraint(Sketcher.Constraint("Equal", 19, 22))
sketch1.addConstraint(Sketcher.Constraint("Equal", 32, 34))
sketch1.addConstraint(Sketcher.Constraint("Equal", 36, 38))
sketch1.addConstraint(Sketcher.Constraint("Equal", 49, 50))
sketch1.addConstraint(Sketcher.Constraint("Equal", 60, 63))
sketch1.addConstraint(Sketcher.Constraint("Equal", 72, 18))
sketch1.addConstraint(Sketcher.Constraint("Equal", 23, 26))
sketch1.addConstraint(Sketcher.Constraint("Equal", 48, 51))
sketch1.addConstraint(Sketcher.Constraint("Equal", 53, 59))
sketch1.addConstraint(Sketcher.Constraint("Diameter", 16, 3.2))
sketch1.addConstraint(Sketcher.Constraint("DistanceX", 6, 2, 6, 1, 20.0))
sketch1.addConstraint(Sketcher.Constraint("DistanceX", 17, 2, 17, 1, 14.0))
sketch1.addConstraint(Sketcher.Constraint("DistanceX", 10, 1, 10, 2, 1.8))
sketch1.addConstraint(Sketcher.Constraint("DistanceY", 55, 2, 55, 1, 3.2))
sketch1.addConstraint(Sketcher.Constraint("DistanceY", 0, 1, 0, 2, 82.55))
sketch1.addConstraint(Sketcher.Constraint("DistanceX", 2, 1, 2, 2, 84.836))
sketch1.addConstraint(Sketcher.Constraint("Radius", 1, 4.440541))
sketch1.addConstraint(Sketcher.Constraint("DistanceY", 9, 2, -1, 1, 7.075))
sketch1.addConstraint(Sketcher.Constraint("DistanceX", 54, 2, -1, 1, 46.218))
sketch1.addConstraint(Sketcher.Constraint("DistanceY", 54, 2, -1, 1, 27.292))
sketch1.addConstraint(Sketcher.Constraint("DistanceX", 8, 2, 8, 1, 2.249279))
sketch1.addConstraint(Sketcher.Constraint("DistanceX", 12, 2, 12, 1, 38.844103))
sketch1.addConstraint(Sketcher.Constraint("DistanceX", 54, 2, 54, 1, 7.842617))
sketch1.addConstraint(Sketcher.Constraint("DistanceX", 68, 2, 68, 1, 7.855383))
sketch1.addConstraint(Sketcher.Constraint("DistanceY", 7, 1, 7, 2, 7.918223))
sketch1.addConstraint(Sketcher.Constraint("DistanceY", 11, 1, 11, 2, 6.980093))
sketch1.addConstraint(Sketcher.Constraint("DistanceY", 57, 2, 57, 1, 6.726907))
sketch1.addConstraint(Sketcher.Constraint("DistanceX", 17, 2, -1, 1, 36.724383))
sketch1.addConstraint(Sketcher.Constraint("DistanceY", -1, 1, 17, 2, 36.217093))
sketch1.addConstraint(Sketcher.Constraint("DistanceX", 21, 2, -1, 1, 16.912383))
sketch1.addConstraint(Sketcher.Constraint("DistanceY", -1, 1, 25, 2, 16.405093))
sketch1.addConstraint(Sketcher.Constraint("DistanceX", -1, 1, 33, 2, 2.899617))
sketch1.addConstraint(Sketcher.Constraint("DistanceX", -1, 1, 38, 2, 36.711617))
sketch1.addConstraint(Sketcher.Constraint("DistanceY", 50, 2, -1, 1, 3.406907))
pad1 = body.newObject("PartDesign::Pad", "Pad")
pad1.Profile = sketch1
pad1.Length = 1
pad1.Reversed = True

doc.recompute()
